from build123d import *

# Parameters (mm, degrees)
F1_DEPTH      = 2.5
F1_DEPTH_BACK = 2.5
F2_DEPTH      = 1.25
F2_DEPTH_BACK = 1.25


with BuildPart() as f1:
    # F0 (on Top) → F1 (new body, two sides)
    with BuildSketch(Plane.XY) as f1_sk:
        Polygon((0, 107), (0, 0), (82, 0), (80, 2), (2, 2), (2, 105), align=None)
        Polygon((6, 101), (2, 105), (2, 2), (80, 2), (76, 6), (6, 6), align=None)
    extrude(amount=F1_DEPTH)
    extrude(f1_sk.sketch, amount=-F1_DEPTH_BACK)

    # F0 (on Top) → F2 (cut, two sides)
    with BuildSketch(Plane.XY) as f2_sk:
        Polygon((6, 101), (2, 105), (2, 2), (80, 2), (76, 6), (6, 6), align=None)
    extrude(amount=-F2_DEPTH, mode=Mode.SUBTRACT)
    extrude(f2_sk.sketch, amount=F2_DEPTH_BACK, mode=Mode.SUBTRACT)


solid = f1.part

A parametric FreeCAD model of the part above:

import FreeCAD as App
import Part
import Sketcher

doc = App.newDocument("Part")
body = doc.addObject("PartDesign::Body", "Body")

# Sketch on XY plane
sketch1 = body.newObject("Sketcher::SketchObject", "Sketch")
sketch1.AttachmentSupport = (doc.getObject("XY_Plane"), [""])
sketch1.MapMode = "FlatFace"
sketch1.addGeometry(Part.LineSegment(App.Vector(0, 107, 0), App.Vector(0, 0, 0)), False)
sketch1.addGeometry(Part.LineSegment(App.Vector(0, 0, 0), App.Vector(82, 0, 0)), False)
sketch1.addGeometry(Part.LineSegment(App.Vector(82, 0, 0), App.Vector(76, 6, 0)), False)
sketch1.addGeometry(Part.LineSegment(App.Vector(76, 6, 0), App.Vector(6, 6, 0)), False)
sketch1.addGeometry(Part.LineSegment(App.Vector(6, 6, 0), App.Vector(6, 101, 0)), False)
sketch1.addGeometry(Part.LineSegment(App.Vector(6, 101, 0), App.Vector(0, 107, 0)), False)
sketch1.addConstraint(Sketcher.Constraint("Coincident", 0, 2, 1, 1))
sketch1.addConstraint(Sketcher.Constraint("Coincident", 1, 2, 2, 1))
sketch1.addConstraint(Sketcher.Constraint("Coincident", 2, 2, 3, 1))
sketch1.addConstraint(Sketcher.Constraint("Coincident", 3, 2, 4, 1))
sketch1.addConstraint(Sketcher.Constraint("Coincident", 4, 2, 5, 1))
sketch1.addConstraint(Sketcher.Constraint("Coincident", 5, 2, 0, 1))
sketch1.addConstraint(Sketcher.Constraint("Vertical", 0))
sketch1.addConstraint(Sketcher.Constraint("Horizontal", 1))
sketch1.addConstraint(Sketcher.Constraint("Horizontal", 3))
sketch1.addConstraint(Sketcher.Constraint("Vertical", 4))
sketch1.addConstraint(Sketcher.Constraint("Coincident", 0, 2, -1, 1))
sketch1.addConstraint(Sketcher.Constraint("Parallel", 2, 5))
sketch1.addConstraint(Sketcher.Constraint("Equal", 2, 5))
sketch1.addConstraint(Sketcher.Constraint("DistanceX", 1, 1, 1, 2, 82.0))
sketch1.addConstraint(Sketcher.Constraint("DistanceX", 3, 2, 3, 1, 70.0))
sketch1.addConstraint(Sketcher.Constraint("DistanceY", 0, 2, 0, 1, 107.0))
sketch1.addConstraint(Sketcher.Constraint("DistanceY", 4, 1, 4, 2, 95.0))
pad1 = body.newObject("PartDesign::Pad", "Pad")
pad1.Profile = sketch1
pad1.Type = "TwoLengths"
pad1.Length = 2.5
pad1.Length2 = 2.5

# Sketch on XY plane
sketch2 = body.newObject("Sketcher::SketchObject", "Sketch001")
sketch2.AttachmentSupport = (doc.getObject("XY_Plane"), [""])
sketch2.MapMode = "FlatFace"
sketch2.addGeometry(Part.LineSegment(App.Vector(6, 101, 0), App.Vector(2, 105, 0)), False)
sketch2.addGeometry(Part.LineSegment(App.Vector(2, 105, 0), App.Vector(2, 2, 0)), False)
sketch2.addGeometry(Part.LineSegment(App.Vector(2, 2, 0), App.Vector(80, 2, 0)), False)
sketch2.addGeometry(Part.LineSegment(App.Vector(80, 2, 0), App.Vector(76, 6, 0)), False)
sketch2.addGeometry(Part.LineSegment(App.Vector(76, 6, 0), App.Vector(6, 6, 0)), False)
sketch2.addGeometry(Part.LineSegment(App.Vector(6, 6, 0), App.Vector(6, 101, 0)), False)
sketch2.addConstraint(Sketcher.Constraint("Coincident", 0, 2, 1, 1))
sketch2.addConstraint(Sketcher.Constraint("Coincident", 1, 2, 2, 1))
sketch2.addConstraint(Sketcher.Constraint("Coincident", 2, 2, 3, 1))
sketch2.addConstraint(Sketcher.Constraint("Coincident", 3, 2, 4, 1))
sketch2.addConstraint(Sketcher.Constraint("Coincident", 4, 2, 5, 1))
sketch2.addConstraint(Sketcher.Constraint("Coincident", 5, 2, 0, 1))
sketch2.addConstraint(Sketcher.Constraint("Vertical", 1))
sketch2.addConstraint(Sketcher.Constraint("Horizontal", 2))
sketch2.addConstraint(Sketcher.Constraint("Horizontal", 4))
sketch2.addConstraint(Sketcher.Constraint("Vertical", 5))
sketch2.addConstraint(Sketcher.Constraint("Parallel", 0, 3))
sketch2.addConstraint(Sketcher.Constraint("Equal", 0, 3))
sketch2.addConstraint(Sketcher.Constraint("DistanceX", 2, 1, 2, 2, 78.0))
sketch2.addConstraint(Sketcher.Constraint("DistanceX", 4, 2, 4, 1, 70.0))
sketch2.addConstraint(Sketcher.Constraint("DistanceY", 1, 2, 1, 1, 103.0))
sketch2.addConstraint(Sketcher.Constraint("DistanceY", 5, 1, 5, 2, 95.0))
sketch2.addConstraint(Sketcher.Constraint("DistanceX", -1, 1, 0, 2, 2.0))
sketch2.addConstraint(Sketcher.Constraint("DistanceY", -1, 1, 0, 2, 105.0))
pocket1 = body.newObject("PartDesign::Pocket", "Pocket")
pocket1.Profile = sketch2
pocket1.Type = "TwoLengths"
pocket1.Length = 1.25
pocket1.Length2 = 1.25

doc.recompute()
